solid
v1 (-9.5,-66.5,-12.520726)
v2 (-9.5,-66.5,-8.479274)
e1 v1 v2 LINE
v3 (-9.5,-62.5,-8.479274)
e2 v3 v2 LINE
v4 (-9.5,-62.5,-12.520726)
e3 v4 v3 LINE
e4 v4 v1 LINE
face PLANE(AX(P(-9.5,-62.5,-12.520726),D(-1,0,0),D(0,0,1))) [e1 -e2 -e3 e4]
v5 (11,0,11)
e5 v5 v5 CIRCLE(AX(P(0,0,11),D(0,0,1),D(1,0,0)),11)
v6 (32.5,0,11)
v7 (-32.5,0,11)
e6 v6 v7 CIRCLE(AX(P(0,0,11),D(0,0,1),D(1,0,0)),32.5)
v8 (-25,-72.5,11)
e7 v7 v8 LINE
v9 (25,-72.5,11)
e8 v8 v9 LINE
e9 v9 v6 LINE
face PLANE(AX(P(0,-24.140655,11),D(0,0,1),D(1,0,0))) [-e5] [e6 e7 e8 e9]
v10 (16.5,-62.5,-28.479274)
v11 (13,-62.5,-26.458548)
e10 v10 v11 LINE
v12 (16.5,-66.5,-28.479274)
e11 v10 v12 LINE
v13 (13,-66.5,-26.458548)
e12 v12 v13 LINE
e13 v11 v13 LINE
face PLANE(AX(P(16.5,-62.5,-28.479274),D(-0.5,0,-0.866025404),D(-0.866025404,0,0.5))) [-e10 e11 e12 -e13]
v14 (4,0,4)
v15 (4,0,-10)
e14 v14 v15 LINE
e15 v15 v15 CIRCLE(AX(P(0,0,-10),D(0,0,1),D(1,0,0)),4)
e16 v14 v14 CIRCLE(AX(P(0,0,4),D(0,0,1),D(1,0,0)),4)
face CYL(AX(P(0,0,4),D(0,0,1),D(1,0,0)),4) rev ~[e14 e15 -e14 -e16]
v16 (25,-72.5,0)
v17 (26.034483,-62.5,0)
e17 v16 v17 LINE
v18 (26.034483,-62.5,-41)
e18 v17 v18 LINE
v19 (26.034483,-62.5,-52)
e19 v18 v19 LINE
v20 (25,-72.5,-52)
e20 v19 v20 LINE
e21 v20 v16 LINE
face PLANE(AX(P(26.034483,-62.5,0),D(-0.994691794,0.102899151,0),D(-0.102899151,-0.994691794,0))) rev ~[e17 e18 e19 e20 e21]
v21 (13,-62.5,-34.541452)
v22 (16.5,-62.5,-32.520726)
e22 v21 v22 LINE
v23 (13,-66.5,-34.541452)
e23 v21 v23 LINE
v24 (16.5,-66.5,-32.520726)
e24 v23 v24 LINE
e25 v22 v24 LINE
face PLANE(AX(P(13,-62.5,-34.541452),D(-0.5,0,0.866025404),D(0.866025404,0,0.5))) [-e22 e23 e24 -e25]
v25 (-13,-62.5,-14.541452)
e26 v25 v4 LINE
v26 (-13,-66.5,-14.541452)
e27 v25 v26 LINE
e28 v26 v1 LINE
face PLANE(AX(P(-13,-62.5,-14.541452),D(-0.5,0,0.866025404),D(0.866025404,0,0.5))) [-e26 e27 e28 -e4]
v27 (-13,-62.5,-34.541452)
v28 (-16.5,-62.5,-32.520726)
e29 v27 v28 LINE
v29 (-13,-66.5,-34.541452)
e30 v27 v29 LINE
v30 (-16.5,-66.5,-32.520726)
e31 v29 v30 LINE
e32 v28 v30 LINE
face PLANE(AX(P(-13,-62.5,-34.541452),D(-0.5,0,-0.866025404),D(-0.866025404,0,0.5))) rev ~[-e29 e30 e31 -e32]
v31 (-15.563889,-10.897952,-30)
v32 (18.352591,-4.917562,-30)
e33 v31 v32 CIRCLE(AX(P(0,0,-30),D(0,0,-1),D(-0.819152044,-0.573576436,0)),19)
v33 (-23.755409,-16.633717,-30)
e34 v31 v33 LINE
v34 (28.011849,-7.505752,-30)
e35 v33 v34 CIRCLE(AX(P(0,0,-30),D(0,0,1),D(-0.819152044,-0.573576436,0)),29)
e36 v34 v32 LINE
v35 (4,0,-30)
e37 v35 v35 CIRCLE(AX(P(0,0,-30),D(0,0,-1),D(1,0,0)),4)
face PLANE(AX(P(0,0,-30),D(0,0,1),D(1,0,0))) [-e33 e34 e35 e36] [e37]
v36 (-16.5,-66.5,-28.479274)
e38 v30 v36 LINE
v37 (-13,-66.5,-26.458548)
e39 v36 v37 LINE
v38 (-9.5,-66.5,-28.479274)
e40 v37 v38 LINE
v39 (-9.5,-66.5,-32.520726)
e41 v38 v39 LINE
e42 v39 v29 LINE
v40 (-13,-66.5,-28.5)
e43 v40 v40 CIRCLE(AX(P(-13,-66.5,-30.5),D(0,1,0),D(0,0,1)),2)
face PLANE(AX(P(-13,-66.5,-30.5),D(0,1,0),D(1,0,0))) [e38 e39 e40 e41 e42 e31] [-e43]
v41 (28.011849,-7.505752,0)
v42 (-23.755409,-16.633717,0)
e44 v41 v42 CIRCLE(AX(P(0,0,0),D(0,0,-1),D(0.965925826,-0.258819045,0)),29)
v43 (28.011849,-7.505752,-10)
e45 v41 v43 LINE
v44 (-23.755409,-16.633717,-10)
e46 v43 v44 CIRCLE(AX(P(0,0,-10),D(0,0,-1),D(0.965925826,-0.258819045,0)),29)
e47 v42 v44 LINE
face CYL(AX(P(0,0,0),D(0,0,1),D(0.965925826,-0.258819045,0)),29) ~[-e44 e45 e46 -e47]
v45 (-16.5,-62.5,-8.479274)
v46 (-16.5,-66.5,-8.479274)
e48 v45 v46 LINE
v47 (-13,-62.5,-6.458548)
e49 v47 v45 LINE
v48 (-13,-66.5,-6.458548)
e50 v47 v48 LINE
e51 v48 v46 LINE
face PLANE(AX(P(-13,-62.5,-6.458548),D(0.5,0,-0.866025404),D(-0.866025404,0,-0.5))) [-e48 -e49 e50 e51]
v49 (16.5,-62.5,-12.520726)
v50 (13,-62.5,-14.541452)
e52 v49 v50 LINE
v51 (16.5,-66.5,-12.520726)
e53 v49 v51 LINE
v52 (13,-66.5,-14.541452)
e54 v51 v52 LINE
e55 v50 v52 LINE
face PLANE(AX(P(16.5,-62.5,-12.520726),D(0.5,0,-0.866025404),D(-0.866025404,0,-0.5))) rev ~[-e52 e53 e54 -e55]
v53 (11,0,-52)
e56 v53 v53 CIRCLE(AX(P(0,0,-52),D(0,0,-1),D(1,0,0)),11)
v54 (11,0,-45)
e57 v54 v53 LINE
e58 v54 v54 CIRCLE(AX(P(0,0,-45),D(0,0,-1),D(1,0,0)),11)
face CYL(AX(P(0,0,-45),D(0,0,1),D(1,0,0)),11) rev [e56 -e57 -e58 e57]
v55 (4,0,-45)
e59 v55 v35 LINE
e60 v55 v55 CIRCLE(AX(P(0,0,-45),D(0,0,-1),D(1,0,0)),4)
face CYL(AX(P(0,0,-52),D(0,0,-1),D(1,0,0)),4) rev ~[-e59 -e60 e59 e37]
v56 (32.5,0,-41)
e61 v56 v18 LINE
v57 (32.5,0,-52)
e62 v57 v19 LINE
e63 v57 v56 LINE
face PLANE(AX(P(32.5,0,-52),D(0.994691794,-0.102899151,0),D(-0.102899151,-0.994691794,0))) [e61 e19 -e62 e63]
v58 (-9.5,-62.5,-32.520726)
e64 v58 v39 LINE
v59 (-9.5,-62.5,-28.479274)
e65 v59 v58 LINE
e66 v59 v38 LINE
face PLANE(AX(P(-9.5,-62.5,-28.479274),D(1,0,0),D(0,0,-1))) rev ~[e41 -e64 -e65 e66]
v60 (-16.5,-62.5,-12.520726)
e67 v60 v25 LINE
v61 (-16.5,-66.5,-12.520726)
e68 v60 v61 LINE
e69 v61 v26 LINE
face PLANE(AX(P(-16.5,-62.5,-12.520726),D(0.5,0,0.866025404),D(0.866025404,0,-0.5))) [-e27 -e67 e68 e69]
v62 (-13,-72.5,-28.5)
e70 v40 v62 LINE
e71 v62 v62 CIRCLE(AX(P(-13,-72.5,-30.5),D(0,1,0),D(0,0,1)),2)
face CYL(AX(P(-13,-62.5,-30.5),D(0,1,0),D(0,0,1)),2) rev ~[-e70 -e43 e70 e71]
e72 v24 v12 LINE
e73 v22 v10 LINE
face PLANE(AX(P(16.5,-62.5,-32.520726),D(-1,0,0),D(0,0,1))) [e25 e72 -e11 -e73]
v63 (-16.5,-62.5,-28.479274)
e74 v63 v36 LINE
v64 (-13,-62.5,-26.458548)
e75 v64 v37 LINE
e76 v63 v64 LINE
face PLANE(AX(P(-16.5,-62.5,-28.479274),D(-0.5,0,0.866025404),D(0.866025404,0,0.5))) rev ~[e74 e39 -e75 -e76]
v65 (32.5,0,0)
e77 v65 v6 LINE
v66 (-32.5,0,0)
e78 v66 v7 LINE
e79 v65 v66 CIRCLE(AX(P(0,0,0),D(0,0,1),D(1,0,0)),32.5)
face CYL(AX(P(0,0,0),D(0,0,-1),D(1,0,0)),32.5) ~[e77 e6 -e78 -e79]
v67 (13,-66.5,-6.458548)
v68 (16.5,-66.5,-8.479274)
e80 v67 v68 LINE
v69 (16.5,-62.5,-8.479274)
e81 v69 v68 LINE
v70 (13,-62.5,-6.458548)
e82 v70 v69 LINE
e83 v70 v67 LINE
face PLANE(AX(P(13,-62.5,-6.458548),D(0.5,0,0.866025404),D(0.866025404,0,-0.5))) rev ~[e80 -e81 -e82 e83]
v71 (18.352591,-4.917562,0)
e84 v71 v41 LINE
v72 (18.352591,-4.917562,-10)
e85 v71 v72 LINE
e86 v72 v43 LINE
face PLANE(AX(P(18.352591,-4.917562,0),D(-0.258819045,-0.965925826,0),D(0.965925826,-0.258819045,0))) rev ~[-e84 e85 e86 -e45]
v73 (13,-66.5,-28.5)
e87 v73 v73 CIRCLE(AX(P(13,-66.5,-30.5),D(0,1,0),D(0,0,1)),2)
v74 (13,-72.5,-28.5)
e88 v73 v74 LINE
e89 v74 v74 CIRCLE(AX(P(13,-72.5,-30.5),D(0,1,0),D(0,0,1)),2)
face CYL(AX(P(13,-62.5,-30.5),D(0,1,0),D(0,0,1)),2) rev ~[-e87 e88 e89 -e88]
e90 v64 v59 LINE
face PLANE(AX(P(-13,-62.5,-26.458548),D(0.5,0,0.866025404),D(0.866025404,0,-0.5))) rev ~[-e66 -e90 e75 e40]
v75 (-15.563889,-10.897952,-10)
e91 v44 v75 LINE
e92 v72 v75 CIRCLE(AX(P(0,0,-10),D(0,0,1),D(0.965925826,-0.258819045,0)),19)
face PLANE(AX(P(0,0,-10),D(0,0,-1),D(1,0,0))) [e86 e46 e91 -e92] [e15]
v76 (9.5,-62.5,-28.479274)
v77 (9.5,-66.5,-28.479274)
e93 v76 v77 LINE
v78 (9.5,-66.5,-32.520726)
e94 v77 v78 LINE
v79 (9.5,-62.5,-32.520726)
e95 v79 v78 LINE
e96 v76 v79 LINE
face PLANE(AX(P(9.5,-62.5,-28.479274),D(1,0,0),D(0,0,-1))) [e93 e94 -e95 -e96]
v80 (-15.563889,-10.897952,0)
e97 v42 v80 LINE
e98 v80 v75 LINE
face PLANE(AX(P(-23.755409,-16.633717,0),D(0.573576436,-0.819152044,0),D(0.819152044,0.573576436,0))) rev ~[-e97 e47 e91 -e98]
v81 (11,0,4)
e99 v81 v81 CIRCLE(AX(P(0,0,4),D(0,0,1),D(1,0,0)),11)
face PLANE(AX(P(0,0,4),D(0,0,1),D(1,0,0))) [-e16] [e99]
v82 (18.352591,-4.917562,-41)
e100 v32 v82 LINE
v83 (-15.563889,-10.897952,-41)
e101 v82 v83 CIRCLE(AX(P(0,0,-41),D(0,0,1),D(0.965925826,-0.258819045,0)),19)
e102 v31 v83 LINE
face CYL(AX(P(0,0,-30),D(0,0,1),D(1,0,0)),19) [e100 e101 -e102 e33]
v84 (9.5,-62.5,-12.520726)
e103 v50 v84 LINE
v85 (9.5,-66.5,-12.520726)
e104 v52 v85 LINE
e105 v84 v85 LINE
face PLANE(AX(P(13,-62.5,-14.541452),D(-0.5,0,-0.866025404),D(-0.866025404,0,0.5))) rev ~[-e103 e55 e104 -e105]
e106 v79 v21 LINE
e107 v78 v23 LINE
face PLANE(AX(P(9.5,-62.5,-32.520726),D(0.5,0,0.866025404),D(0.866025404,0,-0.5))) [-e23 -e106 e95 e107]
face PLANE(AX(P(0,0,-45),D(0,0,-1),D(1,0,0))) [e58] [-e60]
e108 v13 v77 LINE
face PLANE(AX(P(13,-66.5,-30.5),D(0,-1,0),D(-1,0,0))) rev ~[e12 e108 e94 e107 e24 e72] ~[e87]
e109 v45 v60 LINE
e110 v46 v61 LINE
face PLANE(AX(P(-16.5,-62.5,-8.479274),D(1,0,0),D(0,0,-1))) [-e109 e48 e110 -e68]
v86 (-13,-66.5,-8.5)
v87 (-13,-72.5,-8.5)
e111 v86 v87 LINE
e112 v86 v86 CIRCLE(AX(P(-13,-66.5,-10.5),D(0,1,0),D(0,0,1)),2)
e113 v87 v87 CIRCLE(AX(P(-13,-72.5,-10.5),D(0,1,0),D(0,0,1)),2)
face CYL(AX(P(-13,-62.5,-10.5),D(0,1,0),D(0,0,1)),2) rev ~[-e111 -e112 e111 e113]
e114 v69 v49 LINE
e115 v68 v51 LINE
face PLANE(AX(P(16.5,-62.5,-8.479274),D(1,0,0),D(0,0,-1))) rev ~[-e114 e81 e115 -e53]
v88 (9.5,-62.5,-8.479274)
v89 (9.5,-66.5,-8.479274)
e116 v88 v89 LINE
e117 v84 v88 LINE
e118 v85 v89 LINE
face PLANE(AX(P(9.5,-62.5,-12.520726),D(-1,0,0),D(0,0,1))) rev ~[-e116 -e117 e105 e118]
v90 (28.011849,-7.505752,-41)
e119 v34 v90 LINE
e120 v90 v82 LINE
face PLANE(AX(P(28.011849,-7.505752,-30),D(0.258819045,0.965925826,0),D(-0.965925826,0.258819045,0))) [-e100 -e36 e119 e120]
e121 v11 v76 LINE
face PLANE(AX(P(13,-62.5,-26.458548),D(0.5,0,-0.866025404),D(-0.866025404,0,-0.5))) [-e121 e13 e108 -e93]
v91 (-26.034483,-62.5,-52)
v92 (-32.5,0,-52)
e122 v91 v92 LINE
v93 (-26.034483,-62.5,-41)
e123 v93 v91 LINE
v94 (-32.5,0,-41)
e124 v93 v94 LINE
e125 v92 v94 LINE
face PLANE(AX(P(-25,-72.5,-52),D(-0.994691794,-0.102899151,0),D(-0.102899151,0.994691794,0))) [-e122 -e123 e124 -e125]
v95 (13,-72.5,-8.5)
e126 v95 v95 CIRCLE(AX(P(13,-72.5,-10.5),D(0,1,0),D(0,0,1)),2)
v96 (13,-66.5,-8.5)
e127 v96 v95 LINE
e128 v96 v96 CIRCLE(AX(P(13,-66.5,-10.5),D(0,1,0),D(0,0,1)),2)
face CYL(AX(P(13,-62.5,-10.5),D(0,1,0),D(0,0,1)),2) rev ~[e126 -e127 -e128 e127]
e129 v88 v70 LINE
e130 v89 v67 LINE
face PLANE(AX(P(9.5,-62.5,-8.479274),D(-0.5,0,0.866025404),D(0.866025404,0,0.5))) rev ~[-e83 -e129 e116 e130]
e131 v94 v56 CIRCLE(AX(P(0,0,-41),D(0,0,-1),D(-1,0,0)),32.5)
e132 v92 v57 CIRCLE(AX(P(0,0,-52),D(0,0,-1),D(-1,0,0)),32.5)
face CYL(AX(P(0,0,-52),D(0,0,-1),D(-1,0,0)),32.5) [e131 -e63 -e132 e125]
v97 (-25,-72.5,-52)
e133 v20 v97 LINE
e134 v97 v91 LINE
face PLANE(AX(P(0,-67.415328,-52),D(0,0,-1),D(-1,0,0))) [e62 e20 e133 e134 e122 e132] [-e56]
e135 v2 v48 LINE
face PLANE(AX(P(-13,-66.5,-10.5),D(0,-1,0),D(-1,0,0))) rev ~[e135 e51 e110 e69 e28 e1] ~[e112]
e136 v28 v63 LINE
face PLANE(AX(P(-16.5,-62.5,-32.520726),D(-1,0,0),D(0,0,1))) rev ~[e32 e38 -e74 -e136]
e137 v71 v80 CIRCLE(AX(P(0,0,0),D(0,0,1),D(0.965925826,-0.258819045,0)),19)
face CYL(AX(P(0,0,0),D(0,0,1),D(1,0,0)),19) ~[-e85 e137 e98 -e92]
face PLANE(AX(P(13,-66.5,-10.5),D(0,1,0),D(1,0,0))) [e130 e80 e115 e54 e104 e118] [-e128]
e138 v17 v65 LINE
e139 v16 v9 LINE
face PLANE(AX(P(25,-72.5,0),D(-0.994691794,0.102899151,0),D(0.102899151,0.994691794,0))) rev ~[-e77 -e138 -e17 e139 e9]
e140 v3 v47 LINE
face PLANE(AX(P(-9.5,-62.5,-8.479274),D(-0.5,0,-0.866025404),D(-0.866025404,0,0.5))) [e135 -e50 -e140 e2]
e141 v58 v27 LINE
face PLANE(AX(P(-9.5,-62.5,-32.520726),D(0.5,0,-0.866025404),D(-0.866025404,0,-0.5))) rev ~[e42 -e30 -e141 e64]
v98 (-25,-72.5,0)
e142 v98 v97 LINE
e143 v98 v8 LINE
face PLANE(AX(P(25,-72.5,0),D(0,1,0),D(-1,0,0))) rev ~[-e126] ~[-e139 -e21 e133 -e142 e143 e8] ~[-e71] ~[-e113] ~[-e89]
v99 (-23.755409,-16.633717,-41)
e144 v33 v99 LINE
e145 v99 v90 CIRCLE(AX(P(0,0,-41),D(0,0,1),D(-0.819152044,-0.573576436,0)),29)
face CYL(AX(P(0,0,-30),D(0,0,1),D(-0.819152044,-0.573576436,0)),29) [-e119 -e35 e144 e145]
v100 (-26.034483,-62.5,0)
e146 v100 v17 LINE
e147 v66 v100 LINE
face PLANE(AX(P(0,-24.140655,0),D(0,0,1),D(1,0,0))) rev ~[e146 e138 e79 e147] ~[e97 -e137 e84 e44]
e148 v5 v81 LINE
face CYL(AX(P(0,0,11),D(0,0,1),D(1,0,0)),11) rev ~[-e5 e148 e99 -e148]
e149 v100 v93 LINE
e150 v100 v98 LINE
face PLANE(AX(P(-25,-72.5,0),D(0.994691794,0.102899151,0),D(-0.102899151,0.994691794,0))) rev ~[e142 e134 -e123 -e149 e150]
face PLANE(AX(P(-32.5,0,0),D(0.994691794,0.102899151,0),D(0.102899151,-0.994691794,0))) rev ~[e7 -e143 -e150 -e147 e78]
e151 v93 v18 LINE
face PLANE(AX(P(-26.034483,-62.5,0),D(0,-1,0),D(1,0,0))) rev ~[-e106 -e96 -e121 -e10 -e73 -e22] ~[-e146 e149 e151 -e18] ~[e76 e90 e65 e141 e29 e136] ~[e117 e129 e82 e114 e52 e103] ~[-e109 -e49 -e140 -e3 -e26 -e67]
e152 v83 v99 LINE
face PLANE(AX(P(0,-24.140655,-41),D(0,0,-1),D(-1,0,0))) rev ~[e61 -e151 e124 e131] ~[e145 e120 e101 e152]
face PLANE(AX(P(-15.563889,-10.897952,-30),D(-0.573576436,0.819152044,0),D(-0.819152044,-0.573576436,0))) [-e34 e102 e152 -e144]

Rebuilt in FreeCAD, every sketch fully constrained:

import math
import FreeCAD as App
import Part
import Sketcher

V = App.Vector
Q = App.Units.Quantity

doc = App.newDocument("Part")
params = doc.addObject("Spreadsheet::Sheet", "Params")
for row, (alias, value) in enumerate([
    ("sketch1_radius", "32.5 mm"),
    ("sketch1_width", "50 mm"),
    ("pad1_length", "11 mm"),
    ("sketch2_diameter", "22 mm"),
    ("pocket1_length", "7 mm"),
    ("sketch3_diameter", "38 mm"),
    ("pad2_length", "10 mm"),
    ("sketch4_diameter", "8 mm"),
    ("pocket2_length", "18 mm"),
    ("sketch5_width", "50 mm"),
    ("pad3_length", "52 mm"),
    ("sketch6_radius", "32.5 mm"),
    ("sketch6_width", "50 mm"),
    ("pad4_length", "11 mm"),
    ("sketch7_diameter", "8 mm"),
    ("pocket3_length", "22 mm"),
    ("sketch8_diameter", "38 mm"),
    ("pad5_length", "11 mm"),
    ("sketch9_diameter", "8 mm"),
    ("sketch10_diameter", "22 mm"),
    ("pocket5_length", "7 mm"),
    ("sketch11_radius", "29 mm"),
    ("sketch11_radius2", "19 mm"),
    ("pad6_length", "10 mm"),
    ("sketch12_radius", "29 mm"),
    ("sketch12_radius2", "19 mm"),
    ("pad7_length", "11 mm"),
    ("sketch13_diameter", "4 mm"),
    ("pocket6_length", "11 mm"),
    ("pocket7_length", "4 mm"),
], start=1):
    params.set(f"A{row}", alias)
    params.set(f"B{row}", "=" + value)
    params.setAlias(f"B{row}", alias)

body = doc.addObject("PartDesign::Body", "Body")

# Sketch on XY plane
sketch1 = body.newObject("Sketcher::SketchObject", "Sketch")
sketch1.AttachmentSupport = (doc.getObject("XY_Plane"), [""])
sketch1.MapMode = "FlatFace"
sketch1.addGeometry(Part.LineSegment(V(-32.5, 0, 0), V(-25, -72.5, 0)), False)
sketch1.addGeometry(Part.LineSegment(V(-25, -72.5, 0), V(25, -72.5, 0)), False)
sketch1.addGeometry(Part.LineSegment(V(25, -72.5, 0), V(32.5, 0, 0)), False)
sketch1.addGeometry(Part.ArcOfCircle(Part.Circle(V(0, 0, 0), V(0, 0, 1), 32.5), math.radians(0), math.radians(180)), False)
sketch1.addConstraint(Sketcher.Constraint("Coincident", 0, 2, 1, 1))
sketch1.addConstraint(Sketcher.Constraint("Coincident", 1, 2, 2, 1))
sketch1.addConstraint(Sketcher.Constraint("Coincident", 2, 2, 3, 1))
sketch1.addConstraint(Sketcher.Constraint("Coincident", 3, 2, 0, 1))
sketch1.addConstraint(Sketcher.Constraint("Horizontal", 1))
sketch1.addConstraint(Sketcher.Constraint("Coincident", 3, 3, -1, 1))
sketch1.addConstraint(Sketcher.Constraint("PointOnObject", 2, 2, -1))
sketch1.addConstraint(Sketcher.Constraint("PointOnObject", 3, 2, -1))
sketch1.addConstraint(Sketcher.Constraint("Equal", 0, 2))
sketch1.addConstraint(Sketcher.Constraint("Radius", 3, 32.5))
sketch1.addConstraint(Sketcher.Constraint("DistanceX", 1, 1, 1, 2, 50.0))
sketch1.addConstraint(Sketcher.Constraint("DistanceY", 0, 2, -1, 1, 72.5))
sketch1.setExpression("Constraints[9]", "Params.sketch1_radius")
sketch1.setExpression("Constraints[10]", "Params.sketch1_width")
pad1 = body.newObject("PartDesign::Pad", "Pad")
pad1.Profile = sketch1
pad1.setExpression("Length", "Params.pad1_length")

# Sketch on XY plane
sketch2 = body.newObject("Sketcher::SketchObject", "Sketch001")
sketch2.AttachmentSupport = (doc.getObject("XY_Plane"), [""])
sketch2.MapMode = "FlatFace"
sketch2.AttachmentOffset = App.Placement(V(0, 0, 11), App.Rotation())
sketch2.addGeometry(Part.Circle(V(0, 0, 0), V(0, 0, 1), 11), False)
sketch2.addConstraint(Sketcher.Constraint("Coincident", 0, 3, -1, 1))
sketch2.addConstraint(Sketcher.Constraint("Diameter", 0, 22.0))
sketch2.setExpression("Constraints[1]", "Params.sketch2_diameter")
pocket1 = body.newObject("PartDesign::Pocket", "Pocket")
pocket1.Profile = sketch2
pocket1.setExpression("Length", "Params.pocket1_length")

# Sketch on XY plane
sketch3 = body.newObject("Sketcher::SketchObject", "Sketch002")
sketch3.AttachmentSupport = (doc.getObject("XY_Plane"), [""])
sketch3.MapMode = "FlatFace"
sketch3.addGeometry(Part.Circle(V(0, 0, 0), V(0, 0, 1), 19), False)
sketch3.addConstraint(Sketcher.Constraint("Coincident", 0, 3, -1, 1))
sketch3.addConstraint(Sketcher.Constraint("Diameter", 0, 38.0))
sketch3.setExpression("Constraints[1]", "Params.sketch3_diameter")
pad2 = body.newObject("PartDesign::Pad", "Pad001")
pad2.Profile = sketch3
pad2.setExpression("Length", "Params.pad2_length")
pad2.Reversed = True

# Sketch on XY plane
sketch4 = body.newObject("Sketcher::SketchObject", "Sketch003")
sketch4.AttachmentSupport = (doc.getObject("XY_Plane"), [""])
sketch4.MapMode = "FlatFace"
sketch4.AttachmentOffset = App.Placement(V(0, 0, 4), App.Rotation())
sketch4.addGeometry(Part.Circle(V(0, 0, 0), V(0, 0, 1), 4), False)
sketch4.addConstraint(Sketcher.Constraint("Coincident", 0, 3, -1, 1))
sketch4.addConstraint(Sketcher.Constraint("Diameter", 0, 8.0))
sketch4.setExpression("Constraints[1]", "Params.sketch4_diameter")
pocket2 = body.newObject("PartDesign::Pocket", "Pocket001")
pocket2.Profile = sketch4
pocket2.setExpression("Length", "Params.pocket2_length")

# Sketch on XY plane
sketch5 = body.newObject("Sketcher::SketchObject", "Sketch004")
sketch5.AttachmentSupport = (doc.getObject("XY_Plane"), [""])
sketch5.MapMode = "FlatFace"
sketch5.addGeometry(Part.LineSegment(V(25, -72.5, 0), V(-25, -72.5, 0)), False)
sketch5.addGeometry(Part.LineSegment(V(-25, -72.5, 0), V(-26.034483, -62.5, 0)), False)
sketch5.addGeometry(Part.LineSegment(V(-26.034483, -62.5, 0), V(26.034483, -62.5, 0)), False)
sketch5.addGeometry(Part.LineSegment(V(26.034483, -62.5, 0), V(25, -72.5, 0)), False)
sketch5.addConstraint(Sketcher.Constraint("Coincident", 0, 2, 1, 1))
sketch5.addConstraint(Sketcher.Constraint("Coincident", 1, 2, 2, 1))
sketch5.addConstraint(Sketcher.Constraint("Coincident", 2, 2, 3, 1))
sketch5.addConstraint(Sketcher.Constraint("Coincident", 3, 2, 0, 1))
sketch5.addConstraint(Sketcher.Constraint("Horizontal", 0))
sketch5.addConstraint(Sketcher.Constraint("Horizontal", 2))
sketch5.addConstraint(Sketcher.Constraint("Equal", 1, 3))
sketch5.addConstraint(Sketcher.Constraint("DistanceX", 0, 2, 0, 1, 50.0))
sketch5.addConstraint(Sketcher.Constraint("DistanceX", 0, 2, -1, 1, 25.0))
sketch5.addConstraint(Sketcher.Constraint("DistanceY", 0, 2, 1, 2, 10.0))
sketch5.addConstraint(Sketcher.Constraint("DistanceY", 0, 2, -1, 1, 72.5))
sketch5.addConstraint(Sketcher.Constraint("DistanceX", 2, 1, 2, 2, 52.068966))
sketch5.setExpression("Constraints[7]", "Params.sketch5_width")
pad3 = body.newObject("PartDesign::Pad", "Pad002")
pad3.Profile = sketch5
pad3.setExpression("Length", "Params.pad3_length")
pad3.Reversed = True

# Sketch on XY plane
sketch6 = body.newObject("Sketcher::SketchObject", "Sketch005")
sketch6.AttachmentSupport = (doc.getObject("XY_Plane"), [""])
sketch6.MapMode = "FlatFace"
sketch6.AttachmentOffset = App.Placement(V(0, 0, -52), App.Rotation())
sketch6.addGeometry(Part.LineSegment(V(-25, -72.5, 0), V(-32.5, 0, 0)), False)
sketch6.addGeometry(Part.ArcOfCircle(Part.Circle(V(0, 0, 0), V(0, 0, 1), 32.5), math.radians(0), math.radians(180)), False)
sketch6.addGeometry(Part.LineSegment(V(32.5, 0, 0), V(25, -72.5, 0)), False)
sketch6.addGeometry(Part.LineSegment(V(25, -72.5, 0), V(-25, -72.5, 0)), False)
sketch6.addConstraint(Sketcher.Constraint("Coincident", 0, 2, 1, 2))
sketch6.addConstraint(Sketcher.Constraint("Coincident", 1, 1, 2, 1))
sketch6.addConstraint(Sketcher.Constraint("Coincident", 2, 2, 3, 1))
sketch6.addConstraint(Sketcher.Constraint("Coincident", 3, 2, 0, 1))
sketch6.addConstraint(Sketcher.Constraint("Horizontal", 3))
sketch6.addConstraint(Sketcher.Constraint("Coincident", 1, 3, -1, 1))
sketch6.addConstraint(Sketcher.Constraint("PointOnObject", 0, 2, -1))
sketch6.addConstraint(Sketcher.Constraint("PointOnObject", 1, 1, -1))
sketch6.addConstraint(Sketcher.Constraint("Equal", 0, 2))
sketch6.addConstraint(Sketcher.Constraint("Radius", 1, 32.5))
sketch6.addConstraint(Sketcher.Constraint("DistanceX", 3, 2, 3, 1, 50.0))
sketch6.addConstraint(Sketcher.Constraint("DistanceY", 2, 2, -1, 1, 72.5))
sketch6.setExpression("Constraints[9]", "Params.sketch6_radius")
sketch6.setExpression("Constraints[10]", "Params.sketch6_width")
pad4 = body.newObject("PartDesign::Pad", "Pad003")
pad4.Profile = sketch6
pad4.setExpression("Length", "Params.pad4_length")

# Sketch on XY plane
sketch7 = body.newObject("Sketcher::SketchObject", "Sketch006")
sketch7.AttachmentSupport = (doc.getObject("XY_Plane"), [""])
sketch7.MapMode = "FlatFace"
sketch7.AttachmentOffset = App.Placement(V(0, 0, -30), App.Rotation())
sketch7.addGeometry(Part.Circle(V(0, 0, 0), V(0, 0, 1), 4), False)
sketch7.addConstraint(Sketcher.Constraint("Coincident", 0, 3, -1, 1))
sketch7.addConstraint(Sketcher.Constraint("Diameter", 0, 8.0))
sketch7.setExpression("Constraints[1]", "Params.sketch7_diameter")
pocket3 = body.newObject("PartDesign::Pocket", "Pocket002")
pocket3.Profile = sketch7
pocket3.setExpression("Length", "Params.pocket3_length")

# Sketch on XY plane
sketch8 = body.newObject("Sketcher::SketchObject", "Sketch007")
sketch8.AttachmentSupport = (doc.getObject("XY_Plane"), [""])
sketch8.MapMode = "FlatFace"
sketch8.AttachmentOffset = App.Placement(V(0, 0, -30), App.Rotation())
sketch8.addGeometry(Part.Circle(V(0, 0, 0), V(0, 0, 1), 19), False)
sketch8.addConstraint(Sketcher.Constraint("Coincident", 0, 3, -1, 1))
sketch8.addConstraint(Sketcher.Constraint("Diameter", 0, 38.0))
sketch8.setExpression("Constraints[1]", "Params.sketch8_diameter")
pad5 = body.newObject("PartDesign::Pad", "Pad004")
pad5.Profile = sketch8
pad5.setExpression("Length", "Params.pad5_length")
pad5.Reversed = True

# Sketch on XY plane
sketch9 = body.newObject("Sketcher::SketchObject", "Sketch008")
sketch9.AttachmentSupport = (doc.getObject("XY_Plane"), [""])
sketch9.MapMode = "FlatFace"
sketch9.AttachmentOffset = App.Placement(V(0, 0, -52), App.Rotation())
sketch9.addGeometry(Part.Circle(V(0, 0, 0), V(0, 0, 1), 4), False)
sketch9.addConstraint(Sketcher.Constraint("Coincident", 0, 3, -1, 1))
sketch9.addConstraint(Sketcher.Constraint("Diameter", 0, 8.0))
sketch9.setExpression("Constraints[1]", "Params.sketch9_diameter")
pocket4 = body.newObject("PartDesign::Pocket", "Pocket003")
pocket4.Profile = sketch9
pocket4.Type = "ThroughAll"
pocket4.Reversed = True

# Sketch on XY plane
sketch10 = body.newObject("Sketcher::SketchObject", "Sketch009")
sketch10.AttachmentSupport = (doc.getObject("XY_Plane"), [""])
sketch10.MapMode = "FlatFace"
sketch10.AttachmentOffset = App.Placement(V(0, 0, -45), App.Rotation())
sketch10.addGeometry(Part.Circle(V(0, 0, 0), V(0, 0, 1), 11), False)
sketch10.addConstraint(Sketcher.Constraint("Coincident", 0, 3, -1, 1))
sketch10.addConstraint(Sketcher.Constraint("Diameter", 0, 22.0))
sketch10.setExpression("Constraints[1]", "Params.sketch10_diameter")
pocket5 = body.newObject("PartDesign::Pocket", "Pocket004")
pocket5.Profile = sketch10
pocket5.setExpression("Length", "Params.pocket5_length")

# Sketch on XY plane
sketch11 = body.newObject("Sketcher::SketchObject", "Sketch010")
sketch11.AttachmentSupport = (doc.getObject("XY_Plane"), [""])
sketch11.MapMode = "FlatFace"
sketch11.addGeometry(Part.LineSegment(V(18.352591, -4.917562, 0), V(28.011849, -7.505752, 0)), False)
sketch11.addGeometry(Part.ArcOfCircle(Part.Circle(V(0, 0, 0), V(0, 0, 1), 29), math.radians(-145), math.radians(-15)), False)
sketch11.addGeometry(Part.LineSegment(V(-23.755409, -16.633717, 0), V(-15.563889, -10.897952, 0)), False)
sketch11.addGeometry(Part.ArcOfCircle(Part.Circle(V(0, 0, 0), V(0, 0, 1), 19), math.radians(-145), math.radians(-15)), False)
sketch11.addConstraint(Sketcher.Constraint("Coincident", 0, 2, 1, 2))
sketch11.addConstraint(Sketcher.Constraint("Coincident", 1, 1, 2, 1))
sketch11.addConstraint(Sketcher.Constraint("Coincident", 2, 2, 3, 1))
sketch11.addConstraint(Sketcher.Constraint("Coincident", 3, 2, 0, 1))
sketch11.addConstraint(Sketcher.Constraint("Coincident", 1, 3, -1, 1))
sketch11.addConstraint(Sketcher.Constraint("Coincident", 3, 3, -1, 1))
sketch11.addConstraint(Sketcher.Constraint("Radius", 1, 29.0))
sketch11.addConstraint(Sketcher.Constraint("Radius", 3, 19.0))
sketch11.addConstraint(Sketcher.Constraint("Angle", 0, Q("-15 deg")))
sketch11.addConstraint(Sketcher.Constraint("Angle", 2, Q("35 deg")))
sketch11.addConstraint(Sketcher.Constraint("DistanceX", 1, 1, 3, 2, 42.108))
sketch11.addConstraint(Sketcher.Constraint("DistanceY", 2, 2, 0, 2, 3.3922))
sketch11.setExpression("Constraints[6]", "Params.sketch11_radius")
sketch11.setExpression("Constraints[7]", "Params.sketch11_radius2")
pad6 = body.newObject("PartDesign::Pad", "Pad005")
pad6.Profile = sketch11
pad6.setExpression("Length", "Params.pad6_length")
pad6.Reversed = True

# Sketch on XY plane
sketch12 = body.newObject("Sketcher::SketchObject", "Sketch011")
sketch12.AttachmentSupport = (doc.getObject("XY_Plane"), [""])
sketch12.MapMode = "FlatFace"
sketch12.AttachmentOffset = App.Placement(V(0, 0, -30), App.Rotation())
sketch12.addGeometry(Part.LineSegment(V(-15.563889, -10.897952, 0), V(-23.755409, -16.633717, 0)), False)
sketch12.addGeometry(Part.ArcOfCircle(Part.Circle(V(0, 0, 0), V(0, 0, 1), 29), math.radians(-145), math.radians(-15)), False)
sketch12.addGeometry(Part.LineSegment(V(28.011849, -7.505752, 0), V(18.352591, -4.917562, 0)), False)
sketch12.addGeometry(Part.ArcOfCircle(Part.Circle(V(0, 0, 0), V(0, 0, 1), 19), math.radians(-145), math.radians(-15)), False)
sketch12.addConstraint(Sketcher.Constraint("Coincident", 0, 2, 1, 1))
sketch12.addConstraint(Sketcher.Constraint("Coincident", 1, 2, 2, 1))
sketch12.addConstraint(Sketcher.Constraint("Coincident", 2, 2, 3, 2))
sketch12.addConstraint(Sketcher.Constraint("Coincident", 3, 1, 0, 1))
sketch12.addConstraint(Sketcher.Constraint("Coincident", 1, 3, -1, 1))
sketch12.addConstraint(Sketcher.Constraint("Coincident", 3, 3, -1, 1))
sketch12.addConstraint(Sketcher.Constraint("Radius", 1, 29.0))
sketch12.addConstraint(Sketcher.Constraint("Radius", 3, 19.0))
sketch12.addConstraint(Sketcher.Constraint("Angle", 0, Q("-145 deg")))
sketch12.addConstraint(Sketcher.Constraint("Angle", 2, Q("165 deg")))
sketch12.addConstraint(Sketcher.Constraint("DistanceX", 0, 2, 2, 2, 42.108))
sketch12.addConstraint(Sketcher.Constraint("DistanceY", 3, 1, 1, 2, 3.3922))
sketch12.setExpression("Constraints[6]", "Params.sketch12_radius")
sketch12.setExpression("Constraints[7]", "Params.sketch12_radius2")
pad7 = body.newObject("PartDesign::Pad", "Pad006")
pad7.Profile = sketch12
pad7.setExpression("Length", "Params.pad7_length")
pad7.Reversed = True

# Sketch on XZ plane
sketch13 = body.newObject("Sketcher::SketchObject", "Sketch012")
sketch13.AttachmentSupport = (doc.getObject("XZ_Plane"), [""])
sketch13.MapMode = "FlatFace"
sketch13.AttachmentOffset = App.Placement(V(0, 0, 62.5), App.Rotation())
sketch13.addGeometry(Part.Circle(V(-13, -30.5, 0), V(0, 0, 1), 2), False)
sketch13.addGeometry(Part.Circle(V(13, -30.5, 0), V(0, 0, 1), 2), False)
sketch13.addGeometry(Part.Circle(V(13, -10.5, 0), V(0, 0, 1), 2), False)
sketch13.addGeometry(Part.Circle(V(-13, -10.5, 0), V(0, 0, 1), 2), False)
sketch13.addConstraint(Sketcher.Constraint("Equal", 0, 1))
sketch13.addConstraint(Sketcher.Constraint("Equal", 1, 2))
sketch13.addConstraint(Sketcher.Constraint("Equal", 2, 3))
sketch13.addConstraint(Sketcher.Constraint("Symmetric", 0, 3, 1, 3, -2))
sketch13.addConstraint(Sketcher.Constraint("Symmetric", 2, 3, 3, 3, -2))
sketch13.addConstraint(Sketcher.Constraint("Vertical", 1, 3, 2, 3))
sketch13.addConstraint(Sketcher.Constraint("Diameter", 0, 4.0))
sketch13.addConstraint(Sketcher.Constraint("DistanceX", 0, 3, -1, 1, 13.0))
sketch13.addConstraint(Sketcher.Constraint("DistanceY", 1, 3, 2, 3, 20.0))
sketch13.addConstraint(Sketcher.Constraint("DistanceY", 0, 3, -1, 1, 30.5))
sketch13.setExpression("Constraints[6]", "Params.sketch13_diameter")
pocket6 = body.newObject("PartDesign::Pocket", "Pocket005")
pocket6.Profile = sketch13
pocket6.setExpression("Length", "Params.pocket6_length")
pocket6.Reversed = True

# Sketch on XZ plane
sketch14 = body.newObject("Sketcher::SketchObject", "Sketch013")
sketch14.AttachmentSupport = (doc.getObject("XZ_Plane"), [""])
sketch14.MapMode = "FlatFace"
sketch14.AttachmentOffset = App.Placement(V(0, 0, 62.5), App.Rotation())
sketch14.addGeometry(Part.LineSegment(V(9.5, -28.479274, 0), V(13, -26.458548, 0)), False)
sketch14.addGeometry(Part.LineSegment(V(13, -26.458548, 0), V(16.5, -28.479274, 0)), False)
sketch14.addGeometry(Part.LineSegment(V(16.5, -28.479274, 0), V(16.5, -32.520726, 0)), False)
sketch14.addGeometry(Part.LineSegment(V(16.5, -32.520726, 0), V(13, -34.541452, 0)), False)
sketch14.addGeometry(Part.LineSegment(V(13, -34.541452, 0), V(9.5, -32.520726, 0)), False)
sketch14.addGeometry(Part.LineSegment(V(9.5, -32.520726, 0), V(9.5, -28.479274, 0)), False)
sketch14.addGeometry(Part.LineSegment(V(-9.5, -28.479274, 0), V(-9.5, -32.520726, 0)), False)
sketch14.addGeometry(Part.LineSegment(V(-9.5, -32.520726, 0), V(-13, -34.541452, 0)), False)
sketch14.addGeometry(Part.LineSegment(V(-13, -34.541452, 0), V(-16.5, -32.520726, 0)), False)
sketch14.addGeometry(Part.LineSegment(V(-16.5, -32.520726, 0), V(-16.5, -28.479274, 0)), False)
sketch14.addGeometry(Part.LineSegment(V(-16.5, -28.479274, 0), V(-13, -26.458548, 0)), False)
sketch14.addGeometry(Part.LineSegment(V(-13, -26.458548, 0), V(-9.5, -28.479274, 0)), False)
sketch14.addGeometry(Part.LineSegment(V(16.5, -12.520726, 0), V(13, -14.541452, 0)), False)
sketch14.addGeometry(Part.LineSegment(V(13, -14.541452, 0), V(9.5, -12.520726, 0)), False)
sketch14.addGeometry(Part.LineSegment(V(9.5, -12.520726, 0), V(9.5, -8.479274, 0)), False)
sketch14.addGeometry(Part.LineSegment(V(9.5, -8.479274, 0), V(13, -6.458548, 0)), False)
sketch14.addGeometry(Part.LineSegment(V(13, -6.458548, 0), V(16.5, -8.479274, 0)), False)
sketch14.addGeometry(Part.LineSegment(V(16.5, -8.479274, 0), V(16.5, -12.520726, 0)), False)
sketch14.addGeometry(Part.LineSegment(V(-9.5, -12.520726, 0), V(-13, -14.541452, 0)), False)
sketch14.addGeometry(Part.LineSegment(V(-13, -14.541452, 0), V(-16.5, -12.520726, 0)), False)
sketch14.addGeometry(Part.LineSegment(V(-16.5, -12.520726, 0), V(-16.5, -8.479274, 0)), False)
sketch14.addGeometry(Part.LineSegment(V(-16.5, -8.479274, 0), V(-13, -6.458548, 0)), False)
sketch14.addGeometry(Part.LineSegment(V(-13, -6.458548, 0), V(-9.5, -8.479274, 0)), False)
sketch14.addGeometry(Part.LineSegment(V(-9.5, -8.479274, 0), V(-9.5, -12.520726, 0)), False)
sketch14.addConstraint(Sketcher.Constraint("Coincident", 0, 2, 1, 1))
sketch14.addConstraint(Sketcher.Constraint("Coincident", 1, 2, 2, 1))
sketch14.addConstraint(Sketcher.Constraint("Coincident", 2, 2, 3, 1))
sketch14.addConstraint(Sketcher.Constraint("Coincident", 3, 2, 4, 1))
sketch14.addConstraint(Sketcher.Constraint("Coincident", 4, 2, 5, 1))
sketch14.addConstraint(Sketcher.Constraint("Coincident", 5, 2, 0, 1))
sketch14.addConstraint(Sketcher.Constraint("Coincident", 6, 2, 7, 1))
sketch14.addConstraint(Sketcher.Constraint("Coincident", 7, 2, 8, 1))
sketch14.addConstraint(Sketcher.Constraint("Coincident", 8, 2, 9, 1))
sketch14.addConstraint(Sketcher.Constraint("Coincident", 9, 2, 10, 1))
sketch14.addConstraint(Sketcher.Constraint("Coincident", 10, 2, 11, 1))
sketch14.addConstraint(Sketcher.Constraint("Coincident", 11, 2, 6, 1))
sketch14.addConstraint(Sketcher.Constraint("Coincident", 12, 2, 13, 1))
sketch14.addConstraint(Sketcher.Constraint("Coincident", 13, 2, 14, 1))
sketch14.addConstraint(Sketcher.Constraint("Coincident", 14, 2, 15, 1))
sketch14.addConstraint(Sketcher.Constraint("Coincident", 15, 2, 16, 1))
sketch14.addConstraint(Sketcher.Constraint("Coincident", 16, 2, 17, 1))
sketch14.addConstraint(Sketcher.Constraint("Coincident", 17, 2, 12, 1))
sketch14.addConstraint(Sketcher.Constraint("Coincident", 18, 2, 19, 1))
sketch14.addConstraint(Sketcher.Constraint("Coincident", 19, 2, 20, 1))
sketch14.addConstraint(Sketcher.Constraint("Coincident", 20, 2, 21, 1))
sketch14.addConstraint(Sketcher.Constraint("Coincident", 21, 2, 22, 1))
sketch14.addConstraint(Sketcher.Constraint("Coincident", 22, 2, 23, 1))
sketch14.addConstraint(Sketcher.Constraint("Coincident", 23, 2, 18, 1))
sketch14.addConstraint(Sketcher.Constraint("Vertical", 2))
sketch14.addConstraint(Sketcher.Constraint("Vertical", 5))
sketch14.addConstraint(Sketcher.Constraint("Vertical", 6))
sketch14.addConstraint(Sketcher.Constraint("Vertical", 9))
sketch14.addConstraint(Sketcher.Constraint("Vertical", 14))
sketch14.addConstraint(Sketcher.Constraint("Vertical", 17))
sketch14.addConstraint(Sketcher.Constraint("Vertical", 20))
sketch14.addConstraint(Sketcher.Constraint("Vertical", 23))
sketch14.addConstraint(Sketcher.Constraint("Symmetric", 4, 2, 6, 2, -2))
sketch14.addConstraint(Sketcher.Constraint("Symmetric", 3, 2, 7, 2, -2))
sketch14.addConstraint(Sketcher.Constraint("Symmetric", 2, 2, 8, 2, -2))
sketch14.addConstraint(Sketcher.Constraint("Symmetric", 0, 2, 10, 2, -2))
sketch14.addConstraint(Sketcher.Constraint("Symmetric", 12, 2, 18, 2, -2))
sketch14.addConstraint(Sketcher.Constraint("Symmetric", 17, 2, 19, 2, -2))
sketch14.addConstraint(Sketcher.Constraint("Symmetric", 15, 2, 21, 2, -2))
sketch14.addConstraint(Sketcher.Constraint("Symmetric", 14, 2, 22, 2, -2))
sketch14.addConstraint(Sketcher.Constraint("Parallel", 0, 3))
sketch14.addConstraint(Sketcher.Constraint("Parallel", 1, 4))
sketch14.addConstraint(Sketcher.Constraint("Parallel", 3, 7))
sketch14.addConstraint(Sketcher.Constraint("Parallel", 7, 10))
sketch14.addConstraint(Sketcher.Constraint("Parallel", 8, 11))
sketch14.addConstraint(Sketcher.Constraint("Parallel", 10, 12))
sketch14.addConstraint(Sketcher.Constraint("Parallel", 11, 13))
sketch14.addConstraint(Sketcher.Constraint("Parallel", 12, 15))
sketch14.addConstraint(Sketcher.Constraint("Parallel", 13, 16))
sketch14.addConstraint(Sketcher.Constraint("Parallel", 15, 18))
sketch14.addConstraint(Sketcher.Constraint("Parallel", 18, 21))
sketch14.addConstraint(Sketcher.Constraint("Horizontal", 2, 2, 4, 2))
sketch14.addConstraint(Sketcher.Constraint("Horizontal", 1, 2, 5, 2))
sketch14.addConstraint(Sketcher.Constraint("Horizontal", 14, 2, 16, 2))
sketch14.addConstraint(Sketcher.Constraint("Horizontal", 13, 2, 17, 2))
sketch14.addConstraint(Sketcher.Constraint("Vertical", 3, 2, 12, 2))
sketch14.addConstraint(Sketcher.Constraint("Vertical", 5, 2, 13, 2))
sketch14.addConstraint(Sketcher.Constraint("Equal", 9, 14))
sketch14.addConstraint(Sketcher.Constraint("Angle", 0, Q("30 deg")))
sketch14.addConstraint(Sketcher.Constraint("DistanceX", -1, 1, 0, 2, 13.0))
sketch14.addConstraint(Sketcher.Constraint("DistanceX", 4, 2, 2, 2, 7.0))
sketch14.addConstraint(Sketcher.Constraint("DistanceY", 4, 2, 13, 2, 20.0))
sketch14.addConstraint(Sketcher.Constraint("DistanceY", 2, 2, 2, 1, 4.041452))
sketch14.addConstraint(Sketcher.Constraint("DistanceY", 0, 2, -1, 1, 26.458548))
pocket7 = body.newObject("PartDesign::Pocket", "Pocket006")
pocket7.Profile = sketch14
pocket7.setExpression("Length", "Params.pocket7_length")
pocket7.Reversed = True

doc.recompute()
